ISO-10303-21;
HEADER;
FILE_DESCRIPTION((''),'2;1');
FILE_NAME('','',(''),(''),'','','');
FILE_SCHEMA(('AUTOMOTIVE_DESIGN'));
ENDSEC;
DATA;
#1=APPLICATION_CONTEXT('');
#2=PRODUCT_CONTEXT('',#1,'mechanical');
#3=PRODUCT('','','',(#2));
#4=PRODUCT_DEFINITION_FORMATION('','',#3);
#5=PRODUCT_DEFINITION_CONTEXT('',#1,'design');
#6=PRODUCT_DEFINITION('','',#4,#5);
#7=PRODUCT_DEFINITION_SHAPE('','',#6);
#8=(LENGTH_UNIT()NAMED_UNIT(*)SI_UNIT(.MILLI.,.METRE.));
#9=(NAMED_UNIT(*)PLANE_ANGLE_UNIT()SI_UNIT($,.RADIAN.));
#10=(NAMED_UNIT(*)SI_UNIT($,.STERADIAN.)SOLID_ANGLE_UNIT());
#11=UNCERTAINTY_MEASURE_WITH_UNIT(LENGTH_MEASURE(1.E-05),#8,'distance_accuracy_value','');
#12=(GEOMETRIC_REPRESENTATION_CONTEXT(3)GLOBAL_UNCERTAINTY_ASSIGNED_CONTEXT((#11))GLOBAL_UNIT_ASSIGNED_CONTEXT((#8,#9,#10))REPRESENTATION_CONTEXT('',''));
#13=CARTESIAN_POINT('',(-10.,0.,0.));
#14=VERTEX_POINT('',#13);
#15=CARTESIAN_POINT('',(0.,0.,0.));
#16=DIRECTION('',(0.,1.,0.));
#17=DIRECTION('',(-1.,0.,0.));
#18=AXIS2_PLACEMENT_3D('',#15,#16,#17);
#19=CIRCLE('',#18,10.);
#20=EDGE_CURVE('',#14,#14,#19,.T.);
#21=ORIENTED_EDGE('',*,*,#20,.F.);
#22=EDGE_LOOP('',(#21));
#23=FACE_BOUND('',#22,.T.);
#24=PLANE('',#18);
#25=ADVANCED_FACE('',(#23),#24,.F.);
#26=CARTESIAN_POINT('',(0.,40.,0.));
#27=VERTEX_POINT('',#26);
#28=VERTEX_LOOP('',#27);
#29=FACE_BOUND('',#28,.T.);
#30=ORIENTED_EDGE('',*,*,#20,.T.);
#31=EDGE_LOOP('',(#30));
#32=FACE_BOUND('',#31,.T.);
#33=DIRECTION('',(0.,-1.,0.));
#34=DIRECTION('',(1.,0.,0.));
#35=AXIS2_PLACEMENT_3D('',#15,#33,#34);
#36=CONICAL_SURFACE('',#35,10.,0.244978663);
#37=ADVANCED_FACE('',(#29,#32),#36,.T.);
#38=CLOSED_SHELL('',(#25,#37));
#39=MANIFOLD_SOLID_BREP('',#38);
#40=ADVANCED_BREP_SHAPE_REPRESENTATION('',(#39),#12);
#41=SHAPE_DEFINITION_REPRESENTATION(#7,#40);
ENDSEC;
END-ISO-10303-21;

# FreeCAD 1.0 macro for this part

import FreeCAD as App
import Part
import Sketcher

V = App.Vector
Q = App.Units.Quantity

doc = App.newDocument("Part")
body = doc.addObject("PartDesign::Body", "Body")

# Sketch on XY plane
sketch1 = doc.addObject("Sketcher::SketchObject", "Sketch")
body.addObject(sketch1)
sketch1.AttachmentSupport = (doc.XY_Plane, [""])
sketch1.MapMode = "FlatFace"
sketch1.addGeometry(Part.LineSegment(V(0, 0, 0), V(10, 0, 0)), False)
sketch1.addGeometry(Part.LineSegment(V(10, 0, 0), V(0, 40, 0)), False)
sketch1.addGeometry(Part.LineSegment(V(0, 40, 0), V(0, 0, 0)), False)
sketch1.addConstraint(Sketcher.Constraint("Coincident", 0, 2, 1, 1))
sketch1.addConstraint(Sketcher.Constraint("Coincident", 1, 2, 2, 1))
sketch1.addConstraint(Sketcher.Constraint("Coincident", 2, 2, 0, 1))
sketch1.addConstraint(Sketcher.Constraint("Horizontal", 0))
sketch1.addConstraint(Sketcher.Constraint("Vertical", 2))
sketch1.addConstraint(Sketcher.Constraint("Coincident", 2, 2, -1, 1))
sketch1.addConstraint(Sketcher.Constraint("DistanceX", 0, 1, 0, 2, Q("10 mm")))
sketch1.addConstraint(Sketcher.Constraint("DistanceY", 2, 2, 2, 1, Q("40 mm")))
revolution = doc.addObject("PartDesign::Revolution", "Revolution")
body.addObject(revolution)
revolution.Profile = sketch1
revolution.ReferenceAxis = (sketch1, ["V_Axis"])
revolution.Angle = 360

doc.recompute()
